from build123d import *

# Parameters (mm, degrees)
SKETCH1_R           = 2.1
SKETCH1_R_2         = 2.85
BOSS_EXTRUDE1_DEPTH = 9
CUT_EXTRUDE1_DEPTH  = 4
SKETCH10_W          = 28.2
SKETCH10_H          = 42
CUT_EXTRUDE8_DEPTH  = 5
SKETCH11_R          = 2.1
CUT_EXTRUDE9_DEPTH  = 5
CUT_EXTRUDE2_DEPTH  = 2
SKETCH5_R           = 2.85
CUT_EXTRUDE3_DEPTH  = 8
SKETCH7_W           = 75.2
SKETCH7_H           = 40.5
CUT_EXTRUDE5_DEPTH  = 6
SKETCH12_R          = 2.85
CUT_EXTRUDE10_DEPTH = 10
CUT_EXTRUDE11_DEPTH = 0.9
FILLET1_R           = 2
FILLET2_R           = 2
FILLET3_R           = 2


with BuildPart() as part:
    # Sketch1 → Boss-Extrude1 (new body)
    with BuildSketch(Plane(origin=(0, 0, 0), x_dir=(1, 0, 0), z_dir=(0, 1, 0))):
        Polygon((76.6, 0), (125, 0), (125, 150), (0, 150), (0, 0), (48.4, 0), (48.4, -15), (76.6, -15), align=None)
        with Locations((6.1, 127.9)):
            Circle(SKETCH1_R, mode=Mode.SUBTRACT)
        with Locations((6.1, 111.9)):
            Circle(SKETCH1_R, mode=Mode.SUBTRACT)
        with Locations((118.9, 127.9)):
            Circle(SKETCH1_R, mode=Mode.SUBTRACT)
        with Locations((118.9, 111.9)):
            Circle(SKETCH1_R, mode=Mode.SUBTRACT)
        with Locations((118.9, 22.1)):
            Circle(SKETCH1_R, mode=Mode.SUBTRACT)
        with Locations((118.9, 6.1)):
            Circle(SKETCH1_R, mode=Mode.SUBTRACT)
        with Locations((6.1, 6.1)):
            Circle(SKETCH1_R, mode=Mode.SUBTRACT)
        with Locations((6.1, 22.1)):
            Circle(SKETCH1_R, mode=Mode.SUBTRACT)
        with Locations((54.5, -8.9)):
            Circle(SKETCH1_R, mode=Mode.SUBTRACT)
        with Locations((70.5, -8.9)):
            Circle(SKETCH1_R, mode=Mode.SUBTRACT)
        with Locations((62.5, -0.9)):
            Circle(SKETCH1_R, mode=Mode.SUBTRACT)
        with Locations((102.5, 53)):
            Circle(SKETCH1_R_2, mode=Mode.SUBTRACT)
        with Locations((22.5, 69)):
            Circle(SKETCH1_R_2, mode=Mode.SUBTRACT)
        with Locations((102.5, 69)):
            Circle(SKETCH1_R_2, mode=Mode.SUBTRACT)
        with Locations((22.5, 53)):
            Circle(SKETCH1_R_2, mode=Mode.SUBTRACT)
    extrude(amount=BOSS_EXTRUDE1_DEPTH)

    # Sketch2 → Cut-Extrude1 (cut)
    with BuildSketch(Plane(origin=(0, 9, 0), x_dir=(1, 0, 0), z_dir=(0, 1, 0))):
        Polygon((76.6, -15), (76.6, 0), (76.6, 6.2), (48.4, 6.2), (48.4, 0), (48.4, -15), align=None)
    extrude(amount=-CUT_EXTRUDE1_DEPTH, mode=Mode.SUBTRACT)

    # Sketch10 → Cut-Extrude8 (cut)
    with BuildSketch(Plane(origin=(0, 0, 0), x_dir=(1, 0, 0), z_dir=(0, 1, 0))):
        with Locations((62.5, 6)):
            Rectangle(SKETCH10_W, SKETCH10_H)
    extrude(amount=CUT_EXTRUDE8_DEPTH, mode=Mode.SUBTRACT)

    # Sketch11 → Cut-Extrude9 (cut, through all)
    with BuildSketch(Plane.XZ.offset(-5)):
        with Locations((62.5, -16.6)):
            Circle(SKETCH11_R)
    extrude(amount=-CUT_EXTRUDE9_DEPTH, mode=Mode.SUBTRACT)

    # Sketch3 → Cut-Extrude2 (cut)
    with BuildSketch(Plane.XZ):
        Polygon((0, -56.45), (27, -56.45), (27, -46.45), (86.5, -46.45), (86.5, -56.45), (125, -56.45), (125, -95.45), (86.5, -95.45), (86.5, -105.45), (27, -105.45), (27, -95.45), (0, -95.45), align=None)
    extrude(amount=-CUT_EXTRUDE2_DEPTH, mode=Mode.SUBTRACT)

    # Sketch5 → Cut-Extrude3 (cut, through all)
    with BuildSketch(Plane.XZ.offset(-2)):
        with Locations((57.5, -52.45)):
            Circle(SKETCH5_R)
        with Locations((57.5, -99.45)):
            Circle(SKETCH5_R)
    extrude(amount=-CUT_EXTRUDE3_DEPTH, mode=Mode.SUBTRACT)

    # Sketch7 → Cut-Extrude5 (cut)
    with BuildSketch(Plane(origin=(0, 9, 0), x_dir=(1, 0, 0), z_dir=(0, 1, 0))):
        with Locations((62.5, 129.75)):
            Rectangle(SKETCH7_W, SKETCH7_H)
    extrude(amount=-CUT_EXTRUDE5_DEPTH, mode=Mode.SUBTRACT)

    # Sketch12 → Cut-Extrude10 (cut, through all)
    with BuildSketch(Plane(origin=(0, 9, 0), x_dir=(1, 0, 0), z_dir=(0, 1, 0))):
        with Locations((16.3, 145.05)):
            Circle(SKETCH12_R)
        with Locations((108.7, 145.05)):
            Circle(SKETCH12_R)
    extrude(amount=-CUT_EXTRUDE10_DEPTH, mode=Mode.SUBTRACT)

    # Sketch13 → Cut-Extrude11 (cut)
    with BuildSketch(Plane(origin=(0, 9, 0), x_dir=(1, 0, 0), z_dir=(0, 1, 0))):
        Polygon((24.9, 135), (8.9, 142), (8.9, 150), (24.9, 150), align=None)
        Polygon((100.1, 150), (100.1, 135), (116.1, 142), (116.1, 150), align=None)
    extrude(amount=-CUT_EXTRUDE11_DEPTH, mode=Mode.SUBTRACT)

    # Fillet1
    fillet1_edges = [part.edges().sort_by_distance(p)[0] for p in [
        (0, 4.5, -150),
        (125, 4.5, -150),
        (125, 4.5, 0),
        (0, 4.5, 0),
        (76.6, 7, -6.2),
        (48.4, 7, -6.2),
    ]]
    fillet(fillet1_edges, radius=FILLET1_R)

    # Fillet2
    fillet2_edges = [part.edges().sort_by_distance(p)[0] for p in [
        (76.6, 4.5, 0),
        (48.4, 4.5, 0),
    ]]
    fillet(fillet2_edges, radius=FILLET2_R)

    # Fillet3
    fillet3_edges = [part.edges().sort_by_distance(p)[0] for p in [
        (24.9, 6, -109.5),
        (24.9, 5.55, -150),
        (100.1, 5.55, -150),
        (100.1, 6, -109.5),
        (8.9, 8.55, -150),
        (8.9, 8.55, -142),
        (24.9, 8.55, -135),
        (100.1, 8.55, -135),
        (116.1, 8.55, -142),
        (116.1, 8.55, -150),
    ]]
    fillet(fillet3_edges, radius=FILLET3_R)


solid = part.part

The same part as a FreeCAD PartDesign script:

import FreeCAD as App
import Part
import Sketcher
Q = App.Units.Quantity


def edges_at(feature, points):
    """Names of the edges that pass closest to the given points."""
    edges = feature.Shape.Edges
    near = lambda p: min(range(len(edges)), key=lambda i: edges[i].distToShape(Part.Vertex(*p))[0])
    return sorted({f"Edge{near(p) + 1}" for p in points})

doc = App.newDocument("Part")
params = doc.addObject("Spreadsheet::Sheet", "Params")
for row, (alias, value) in enumerate([
    ("sketch1_diameter", "4.2 mm"),
    ("sketch1_diameter2", "5.7 mm"),
    ("sketch1_width", "125 mm"),
    ("sketch1_height", "150 mm"),
    ("sketch1_height2", "15 mm"),
    ("pad1_length", "9 mm"),
    ("sketch2_width", "28.2 mm"),
    ("sketch2_height", "21.2 mm"),
    ("pocket1_length", "4 mm"),
    ("sketch3_height", "42 mm"),
    ("sketch3_width", "28.2 mm"),
    ("pocket2_length", "5 mm"),
    ("sketch4_diameter", "4.2 mm"),
    ("sketch5_width", "27 mm"),
    ("sketch5_height", "39 mm"),
    ("sketch5_height2", "10 mm"),
    ("sketch5_width2", "59.5 mm"),
    ("sketch5_width3", "38.5 mm"),
    ("pocket4_length", "2 mm"),
    ("sketch6_diameter", "5.7 mm"),
    ("sketch7_width", "75.2 mm"),
    ("sketch7_height", "40.5 mm"),
    ("pocket6_length", "6 mm"),
    ("sketch8_diameter", "5.7 mm"),
    ("sketch9_width", "16 mm"),
    ("sketch9_height", "15 mm"),
    ("sketch9_height2", "8 mm"),
    ("pocket8_length", "0.9 mm"),
    ("fillet_radius", "2 mm"),
    ("fillet2_radius", "2 mm"),
    ("fillet3_radius", "2 mm"),
], start=1):
    params.set(f"A{row}", alias)
    params.set(f"B{row}", "=" + value)
    params.setAlias(f"B{row}", alias)

body = doc.addObject("PartDesign::Body", "Body")

# Sketch on XZ plane
sketch1 = body.newObject("Sketcher::SketchObject", "Sketch")
sketch1.AttachmentSupport = (doc.getObject("XZ_Plane"), [""])
sketch1.MapMode = "FlatFace"
sketch1.addGeometry(Part.LineSegment(App.Vector(76.6, 0, 0), App.Vector(125, 0, 0)), False)
sketch1.addGeometry(Part.LineSegment(App.Vector(125, 0, 0), App.Vector(125, -150, 0)), False)
sketch1.addGeometry(Part.LineSegment(App.Vector(125, -150, 0), App.Vector(0, -150, 0)), False)
sketch1.addGeometry(Part.LineSegment(App.Vector(0, -150, 0), App.Vector(0, 0, 0)), False)
sketch1.addGeometry(Part.LineSegment(App.Vector(0, 0, 0), App.Vector(48.4, 0, 0)), False)
sketch1.addGeometry(Part.LineSegment(App.Vector(48.4, 0, 0), App.Vector(48.4, 15, 0)), False)
sketch1.addGeometry(Part.LineSegment(App.Vector(48.4, 15, 0), App.Vector(76.6, 15, 0)), False)
sketch1.addGeometry(Part.LineSegment(App.Vector(76.6, 15, 0), App.Vector(76.6, 0, 0)), False)
sketch1.addGeometry(Part.Circle(App.Vector(6.1, -6.1, 0), App.Vector(0, 0, 1), 2.1), False)
sketch1.addGeometry(Part.Circle(App.Vector(6.1, -22.1, 0), App.Vector(0, 0, 1), 2.1), False)
sketch1.addGeometry(Part.Circle(App.Vector(54.5, 8.9, 0), App.Vector(0, 0, 1), 2.1), False)
sketch1.addGeometry(Part.Circle(App.Vector(22.5, -53, 0), App.Vector(0, 0, 1), 2.9), False)
sketch1.addGeometry(Part.Circle(App.Vector(70.5, 8.9, 0), App.Vector(0, 0, 1), 2.1), False)
sketch1.addGeometry(Part.Circle(App.Vector(62.5, 0.9, 0), App.Vector(0, 0, 1), 2.1), False)
sketch1.addGeometry(Part.Circle(App.Vector(118.9, -6.1, 0), App.Vector(0, 0, 1), 2.1), False)
sketch1.addGeometry(Part.Circle(App.Vector(118.9, -22.1, 0), App.Vector(0, 0, 1), 2.1), False)
sketch1.addGeometry(Part.Circle(App.Vector(102.5, -53, 0), App.Vector(0, 0, 1), 2.9), False)
sketch1.addGeometry(Part.Circle(App.Vector(22.5, -69, 0), App.Vector(0, 0, 1), 2.9), False)
sketch1.addGeometry(Part.Circle(App.Vector(6.1, -111.9, 0), App.Vector(0, 0, 1), 2.1), False)
sketch1.addGeometry(Part.Circle(App.Vector(6.1, -127.9, 0), App.Vector(0, 0, 1), 2.1), False)
sketch1.addGeometry(Part.Circle(App.Vector(102.5, -69, 0), App.Vector(0, 0, 1), 2.9), False)
sketch1.addGeometry(Part.Circle(App.Vector(118.9, -111.9, 0), App.Vector(0, 0, 1), 2.1), False)
sketch1.addGeometry(Part.Circle(App.Vector(118.9, -127.9, 0), App.Vector(0, 0, 1), 2.1), False)
sketch1.addConstraint(Sketcher.Constraint("Coincident", 0, 2, 1, 1))
sketch1.addConstraint(Sketcher.Constraint("Coincident", 1, 2, 2, 1))
sketch1.addConstraint(Sketcher.Constraint("Coincident", 2, 2, 3, 1))
sketch1.addConstraint(Sketcher.Constraint("Coincident", 3, 2, 4, 1))
sketch1.addConstraint(Sketcher.Constraint("Coincident", 4, 2, 5, 1))
sketch1.addConstraint(Sketcher.Constraint("Coincident", 5, 2, 6, 1))
sketch1.addConstraint(Sketcher.Constraint("Coincident", 6, 2, 7, 1))
sketch1.addConstraint(Sketcher.Constraint("Coincident", 7, 2, 0, 1))
sketch1.addConstraint(Sketcher.Constraint("Horizontal", 0))
sketch1.addConstraint(Sketcher.Constraint("Vertical", 1))
sketch1.addConstraint(Sketcher.Constraint("Horizontal", 2))
sketch1.addConstraint(Sketcher.Constraint("Vertical", 3))
sketch1.addConstraint(Sketcher.Constraint("Horizontal", 4))
sketch1.addConstraint(Sketcher.Constraint("Vertical", 5))
sketch1.addConstraint(Sketcher.Constraint("Horizontal", 6))
sketch1.addConstraint(Sketcher.Constraint("Vertical", 7))
sketch1.addConstraint(Sketcher.Constraint("Coincident", 3, 2, -1, 1))
sketch1.addConstraint(Sketcher.Constraint("Equal", 8, 9))
sketch1.addConstraint(Sketcher.Constraint("Equal", 9, 10))
sketch1.addConstraint(Sketcher.Constraint("Equal", 10, 12))
sketch1.addConstraint(Sketcher.Constraint("Equal", 12, 13))
sketch1.addConstraint(Sketcher.Constraint("Equal", 13, 14))
sketch1.addConstraint(Sketcher.Constraint("Equal", 14, 15))
sketch1.addConstraint(Sketcher.Constraint("Equal", 11, 16))
sketch1.addConstraint(Sketcher.Constraint("Equal", 16, 17))
sketch1.addConstraint(Sketcher.Constraint("Equal", 15, 18))
sketch1.addConstraint(Sketcher.Constraint("Equal", 18, 19))
sketch1.addConstraint(Sketcher.Constraint("Equal", 17, 20))
sketch1.addConstraint(Sketcher.Constraint("Equal", 19, 21))
sketch1.addConstraint(Sketcher.Constraint("Equal", 21, 22))
sketch1.addConstraint(Sketcher.Constraint("PointOnObject", 0, 2, -1))
sketch1.addConstraint(Sketcher.Constraint("Horizontal", 10, 3, 12, 3))
sketch1.addConstraint(Sketcher.Constraint("Horizontal", 8, 3, 14, 3))
sketch1.addConstraint(Sketcher.Constraint("Horizontal", 9, 3, 15, 3))
sketch1.addConstraint(Sketcher.Constraint("Horizontal", 11, 3, 16, 3))
sketch1.addConstraint(Sketcher.Constraint("Horizontal", 17, 3, 20, 3))
sketch1.addConstraint(Sketcher.Constraint("Horizontal", 18, 3, 21, 3))
sketch1.addConstraint(Sketcher.Constraint("Horizontal", 19, 3, 22, 3))
sketch1.addConstraint(Sketcher.Constraint("Vertical", 8, 3, 9, 3))
sketch1.addConstraint(Sketcher.Constraint("Vertical", 14, 3, 15, 3))
sketch1.addConstraint(Sketcher.Constraint("Vertical", 11, 3, 17, 3))
sketch1.addConstraint(Sketcher.Constraint("Vertical", 9, 3, 18, 3))
sketch1.addConstraint(Sketcher.Constraint("Vertical", 18, 3, 19, 3))
sketch1.addConstraint(Sketcher.Constraint("Vertical", 16, 3, 20, 3))
sketch1.addConstraint(Sketcher.Constraint("Vertical", 15, 3, 21, 3))
sketch1.addConstraint(Sketcher.Constraint("Vertical", 21, 3, 22, 3))
sketch1.addConstraint(Sketcher.Constraint("Equal", 0, 4))
sketch1.addConstraint(Sketcher.Constraint("Diameter", 8, Q("4.2 mm")))
sketch1.addConstraint(Sketcher.Constraint("Diameter", 11, Q("5.7 mm")))
sketch1.addConstraint(Sketcher.Constraint("DistanceX", 2, 2, 2, 1, Q("125 mm")))
sketch1.addConstraint(Sketcher.Constraint("DistanceY", 1, 2, 1, 1, Q("150 mm")))
sketch1.addConstraint(Sketcher.Constraint("DistanceY", 5, 1, 5, 2, Q("15 mm")))
sketch1.addConstraint(Sketcher.Constraint("DistanceX", 0, 1, 0, 2, Q("48.4 mm")))
sketch1.addConstraint(Sketcher.Constraint("DistanceY", 11, 3, -1, 1, Q("53 mm")))
sketch1.addConstraint(Sketcher.Constraint("DistanceY", 17, 3, -1, 1, Q("69 mm")))
sketch1.addConstraint(Sketcher.Constraint("DistanceY", 9, 3, 8, 3, Q("16 mm")))
sketch1.addConstraint(Sketcher.Constraint("DistanceY", 8, 3, 10, 3, Q("15 mm")))
sketch1.addConstraint(Sketcher.Constraint("DistanceX", 11, 3, 10, 3, Q("32 mm")))
sketch1.addConstraint(Sketcher.Constraint("DistanceX", 10, 3, 12, 3, Q("16 mm")))
sketch1.addConstraint(Sketcher.Constraint("DistanceX", 10, 3, 13, 3, Q("8 mm")))
sketch1.addConstraint(Sketcher.Constraint("DistanceY", 13, 3, 10, 3, Q("8 mm")))
sketch1.addConstraint(Sketcher.Constraint("DistanceX", 13, 3, 16, 3, Q("40 mm")))
sketch1.addConstraint(Sketcher.Constraint("DistanceY", 19, 3, 18, 3, Q("16 mm")))
sketch1.addConstraint(Sketcher.Constraint("DistanceX", -1, 1, 8, 3, Q("6.1 mm")))
sketch1.addConstraint(Sketcher.Constraint("DistanceY", 8, 3, -1, 1, Q("6.1 mm")))
sketch1.addConstraint(Sketcher.Constraint("DistanceX", -1, 1, 10, 3, Q("54.5 mm")))
sketch1.addConstraint(Sketcher.Constraint("DistanceX", -1, 1, 14, 3, Q("118.9 mm")))
sketch1.addConstraint(Sketcher.Constraint("DistanceY", 18, 3, -1, 1, Q("111.9 mm")))
sketch1.setExpression("Constraints[47]", "Params.sketch1_diameter")
sketch1.setExpression("Constraints[48]", "Params.sketch1_diameter2")
sketch1.setExpression("Constraints[49]", "Params.sketch1_width")
sketch1.setExpression("Constraints[50]", "Params.sketch1_height")
sketch1.setExpression("Constraints[51]", "Params.sketch1_height2")
pad1 = body.newObject("PartDesign::Pad", "Pad")
pad1.Profile = sketch1
pad1.setExpression("Length", "Params.pad1_length")
pad1.Reversed = True

# Sketch on XZ plane
sketch2 = body.newObject("Sketcher::SketchObject", "Sketch001")
sketch2.AttachmentSupport = (doc.getObject("XZ_Plane"), [""])
sketch2.MapMode = "FlatFace"
sketch2.AttachmentOffset = App.Placement(App.Vector(0, 0, -9), App.Rotation())
sketch2.addGeometry(Part.LineSegment(App.Vector(77, 15, 0), App.Vector(77, -6, 0)), False)
sketch2.addGeometry(Part.LineSegment(App.Vector(77, -6, 0), App.Vector(48, -6, 0)), False)
sketch2.addGeometry(Part.LineSegment(App.Vector(48, -6, 0), App.Vector(48, 15, 0)), False)
sketch2.addGeometry(Part.LineSegment(App.Vector(48, 15, 0), App.Vector(77, 15, 0)), False)
sketch2.addConstraint(Sketcher.Constraint("Coincident", 0, 2, 1, 1))
sketch2.addConstraint(Sketcher.Constraint("Coincident", 1, 2, 2, 1))
sketch2.addConstraint(Sketcher.Constraint("Coincident", 2, 2, 3, 1))
sketch2.addConstraint(Sketcher.Constraint("Coincident", 3, 2, 0, 1))
sketch2.addConstraint(Sketcher.Constraint("Vertical", 0))
sketch2.addConstraint(Sketcher.Constraint("Horizontal", 1))
sketch2.addConstraint(Sketcher.Constraint("Vertical", 2))
sketch2.addConstraint(Sketcher.Constraint("Horizontal", 3))
sketch2.addConstraint(Sketcher.Constraint("DistanceX", 1, 2, 1, 1, Q("28.2 mm")))
sketch2.addConstraint(Sketcher.Constraint("DistanceY", 0, 2, 0, 1, Q("21.2 mm")))
sketch2.addConstraint(Sketcher.Constraint("DistanceY", -1, 1, 2, 2, Q("15 mm")))
sketch2.addConstraint(Sketcher.Constraint("DistanceX", -1, 1, 0, 2, Q("76.6 mm")))
sketch2.setExpression("Constraints[8]", "Params.sketch2_width")
sketch2.setExpression("Constraints[9]", "Params.sketch2_height")
pocket1 = body.newObject("PartDesign::Pocket", "Pocket")
pocket1.Profile = sketch2
pocket1.setExpression("Length", "Params.pocket1_length")
pocket1.Reversed = True

# Sketch on XZ plane
sketch3 = body.newObject("Sketcher::SketchObject", "Sketch002")
sketch3.AttachmentSupport = (doc.getObject("XZ_Plane"), [""])
sketch3.MapMode = "FlatFace"
sketch3.addGeometry(Part.LineSegment(App.Vector(48, -27, 0), App.Vector(48, 15, 0)), False)
sketch3.addGeometry(Part.LineSegment(App.Vector(48, 15, 0), App.Vector(77, 15, 0)), False)
sketch3.addGeometry(Part.LineSegment(App.Vector(77, 15, 0), App.Vector(77, -27, 0)), False)
sketch3.addGeometry(Part.LineSegment(App.Vector(77, -27, 0), App.Vector(48, -27, 0)), False)
sketch3.addConstraint(Sketcher.Constraint("Coincident", 0, 2, 1, 1))
sketch3.addConstraint(Sketcher.Constraint("Coincident", 1, 2, 2, 1))
sketch3.addConstraint(Sketcher.Constraint("Coincident", 2, 2, 3, 1))
sketch3.addConstraint(Sketcher.Constraint("Coincident", 3, 2, 0, 1))
sketch3.addConstraint(Sketcher.Constraint("Vertical", 0))
sketch3.addConstraint(Sketcher.Constraint("Horizontal", 1))
sketch3.addConstraint(Sketcher.Constraint("Vertical", 2))
sketch3.addConstraint(Sketcher.Constraint("Horizontal", 3))
sketch3.addConstraint(Sketcher.Constraint("DistanceY", 0, 1, 0, 2, Q("42 mm")))
sketch3.addConstraint(Sketcher.Constraint("DistanceX", 1, 1, 1, 2, Q("28.2 mm")))
sketch3.addConstraint(Sketcher.Constraint("DistanceY", -1, 1, 0, 2, Q("15 mm")))
sketch3.addConstraint(Sketcher.Constraint("DistanceX", -1, 1, 0, 2, Q("48.4 mm")))
sketch3.setExpression("Constraints[8]", "Params.sketch3_height")
sketch3.setExpression("Constraints[9]", "Params.sketch3_width")
pocket2 = body.newObject("PartDesign::Pocket", "Pocket001")
pocket2.Profile = sketch3
pocket2.setExpression("Length", "Params.pocket2_length")

# Sketch on XZ plane
sketch4 = body.newObject("Sketcher::SketchObject", "Sketch003")
sketch4.AttachmentSupport = (doc.getObject("XZ_Plane"), [""])
sketch4.MapMode = "FlatFace"
sketch4.AttachmentOffset = App.Placement(App.Vector(0, 0, -5), App.Rotation())
sketch4.addGeometry(Part.Circle(App.Vector(62.5, -16.6, 0), App.Vector(0, 0, 1), 2.1), False)
sketch4.addConstraint(Sketcher.Constraint("Diameter", 0, Q("4.2 mm")))
sketch4.addConstraint(Sketcher.Constraint("DistanceX", -1, 1, 0, 3, Q("62.5 mm")))
sketch4.addConstraint(Sketcher.Constraint("DistanceY", 0, 3, -1, 1, Q("16.6 mm")))
sketch4.setExpression("Constraints[0]", "Params.sketch4_diameter")
pocket3 = body.newObject("PartDesign::Pocket", "Pocket002")
pocket3.Profile = sketch4
pocket3.Type = "ThroughAll"

# Sketch on XZ plane
sketch5 = body.newObject("Sketcher::SketchObject", "Sketch004")
sketch5.AttachmentSupport = (doc.getObject("XZ_Plane"), [""])
sketch5.MapMode = "FlatFace"
sketch5.addGeometry(Part.LineSegment(App.Vector(27, -56, 0), App.Vector(0, -56, 0)), False)
sketch5.addGeometry(Part.LineSegment(App.Vector(0, -56, 0), App.Vector(0, -95, 0)), False)
sketch5.addGeometry(Part.LineSegment(App.Vector(0, -95, 0), App.Vector(27, -95, 0)), False)
sketch5.addGeometry(Part.LineSegment(App.Vector(27, -95, 0), App.Vector(27, -105, 0)), False)
sketch5.addGeometry(Part.LineSegment(App.Vector(27, -105, 0), App.Vector(86, -105, 0)), False)
sketch5.addGeometry(Part.LineSegment(App.Vector(86, -105, 0), App.Vector(86, -95, 0)), False)
sketch5.addGeometry(Part.LineSegment(App.Vector(86, -95, 0), App.Vector(125, -95, 0)), False)
sketch5.addGeometry(Part.LineSegment(App.Vector(125, -95, 0), App.Vector(125, -56, 0)), False)
sketch5.addGeometry(Part.LineSegment(App.Vector(125, -56, 0), App.Vector(86, -56, 0)), False)
sketch5.addGeometry(Part.LineSegment(App.Vector(86, -56, 0), App.Vector(86, -46, 0)), False)
sketch5.addGeometry(Part.LineSegment(App.Vector(86, -46, 0), App.Vector(27, -46, 0)), False)
sketch5.addGeometry(Part.LineSegment(App.Vector(27, -46, 0), App.Vector(27, -56, 0)), False)
sketch5.addConstraint(Sketcher.Constraint("Coincident", 0, 2, 1, 1))
sketch5.addConstraint(Sketcher.Constraint("Coincident", 1, 2, 2, 1))
sketch5.addConstraint(Sketcher.Constraint("Coincident", 2, 2, 3, 1))
sketch5.addConstraint(Sketcher.Constraint("Coincident", 3, 2, 4, 1))
sketch5.addConstraint(Sketcher.Constraint("Coincident", 4, 2, 5, 1))
sketch5.addConstraint(Sketcher.Constraint("Coincident", 5, 2, 6, 1))
sketch5.addConstraint(Sketcher.Constraint("Coincident", 6, 2, 7, 1))
sketch5.addConstraint(Sketcher.Constraint("Coincident", 7, 2, 8, 1))
sketch5.addConstraint(Sketcher.Constraint("Coincident", 8, 2, 9, 1))
sketch5.addConstraint(Sketcher.Constraint("Coincident", 9, 2, 10, 1))
sketch5.addConstraint(Sketcher.Constraint("Coincident", 10, 2, 11, 1))
sketch5.addConstraint(Sketcher.Constraint("Coincident", 11, 2, 0, 1))
sketch5.addConstraint(Sketcher.Constraint("Horizontal", 0))
sketch5.addConstraint(Sketcher.Constraint("Vertical", 1))
sketch5.addConstraint(Sketcher.Constraint("Horizontal", 2))
sketch5.addConstraint(Sketcher.Constraint("Vertical", 3))
sketch5.addConstraint(Sketcher.Constraint("Horizontal", 4))
sketch5.addConstraint(Sketcher.Constraint("Vertical", 5))
sketch5.addConstraint(Sketcher.Constraint("Horizontal", 6))
sketch5.addConstraint(Sketcher.Constraint("Vertical", 7))
sketch5.addConstraint(Sketcher.Constraint("Horizontal", 8))
sketch5.addConstraint(Sketcher.Constraint("Vertical", 9))
sketch5.addConstraint(Sketcher.Constraint("Horizontal", 10))
sketch5.addConstraint(Sketcher.Constraint("Vertical", 11))
sketch5.addConstraint(Sketcher.Constraint("PointOnObject", 0, 2, -2))
sketch5.addConstraint(Sketcher.Constraint("Horizontal", 2, 2, 5, 2))
sketch5.addConstraint(Sketcher.Constraint("Horizontal", 0, 2, 7, 2))
sketch5.addConstraint(Sketcher.Constraint("Vertical", 5, 2, 8, 2))
sketch5.addConstraint(Sketcher.Constraint("Vertical", 3, 2, 10, 2))
sketch5.addConstraint(Sketcher.Constraint("Equal", 5, 9))
sketch5.addConstraint(Sketcher.Constraint("DistanceX", 0, 2, 0, 1, Q("27 mm")))
sketch5.addConstraint(Sketcher.Constraint("DistanceY", 1, 2, 1, 1, Q("39 mm")))
sketch5.addConstraint(Sketcher.Constraint("DistanceY", 3, 2, 3, 1, Q("10 mm")))
sketch5.addConstraint(Sketcher.Constraint("DistanceX", 4, 1, 4, 2, Q("59.5 mm")))
sketch5.addConstraint(Sketcher.Constraint("DistanceX", 6, 1, 6, 2, Q("38.5 mm")))
sketch5.addConstraint(Sketcher.Constraint("DistanceY", 0, 2, -1, 1, Q("56.45 mm")))
sketch5.setExpression("Constraints[30]", "Params.sketch5_width")
sketch5.setExpression("Constraints[31]", "Params.sketch5_height")
sketch5.setExpression("Constraints[32]", "Params.sketch5_height2")
sketch5.setExpression("Constraints[33]", "Params.sketch5_width2")
sketch5.setExpression("Constraints[34]", "Params.sketch5_width3")
pocket4 = body.newObject("PartDesign::Pocket", "Pocket003")
pocket4.Profile = sketch5
pocket4.setExpression("Length", "Params.pocket4_length")

# Sketch on XZ plane
sketch6 = body.newObject("Sketcher::SketchObject", "Sketch005")
sketch6.AttachmentSupport = (doc.getObject("XZ_Plane"), [""])
sketch6.MapMode = "FlatFace"
sketch6.AttachmentOffset = App.Placement(App.Vector(0, 0, -2), App.Rotation())
sketch6.addGeometry(Part.Circle(App.Vector(57.5, -52.5, 0), App.Vector(0, 0, 1), 2.9), False)
sketch6.addGeometry(Part.Circle(App.Vector(57.5, -99.5, 0), App.Vector(0, 0, 1), 2.9), False)
sketch6.addConstraint(Sketcher.Constraint("Equal", 0, 1))
sketch6.addConstraint(Sketcher.Constraint("Vertical", 0, 3, 1, 3))
sketch6.addConstraint(Sketcher.Constraint("Diameter", 0, Q("5.7 mm")))
sketch6.addConstraint(Sketcher.Constraint("DistanceY", 1, 3, 0, 3, Q("47 mm")))
sketch6.addConstraint(Sketcher.Constraint("DistanceX", -1, 1, 0, 3, Q("57.5 mm")))
sketch6.addConstraint(Sketcher.Constraint("DistanceY", 0, 3, -1, 1, Q("52.45 mm")))
sketch6.setExpression("Constraints[2]", "Params.sketch6_diameter")
pocket5 = body.newObject("PartDesign::Pocket", "Pocket004")
pocket5.Profile = sketch6
pocket5.Type = "ThroughAll"

# Sketch on XZ plane
sketch7 = body.newObject("Sketcher::SketchObject", "Sketch006")
sketch7.AttachmentSupport = (doc.getObject("XZ_Plane"), [""])
sketch7.MapMode = "FlatFace"
sketch7.AttachmentOffset = App.Placement(App.Vector(0, 0, -9), App.Rotation())
sketch7.addGeometry(Part.LineSegment(App.Vector(25, -150, 0), App.Vector(25, -110, 0)), False)
sketch7.addGeometry(Part.LineSegment(App.Vector(25, -110, 0), App.Vector(100, -110, 0)), False)
sketch7.addGeometry(Part.LineSegment(App.Vector(100, -110, 0), App.Vector(100, -150, 0)), False)
sketch7.addGeometry(Part.LineSegment(App.Vector(100, -150, 0), App.Vector(25, -150, 0)), False)
sketch7.addConstraint(Sketcher.Constraint("Coincident", 0, 2, 1, 1))
sketch7.addConstraint(Sketcher.Constraint("Coincident", 1, 2, 2, 1))
sketch7.addConstraint(Sketcher.Constraint("Coincident", 2, 2, 3, 1))
sketch7.addConstraint(Sketcher.Constraint("Coincident", 3, 2, 0, 1))
sketch7.addConstraint(Sketcher.Constraint("Vertical", 0))
sketch7.addConstraint(Sketcher.Constraint("Horizontal", 1))
sketch7.addConstraint(Sketcher.Constraint("Vertical", 2))
sketch7.addConstraint(Sketcher.Constraint("Horizontal", 3))
sketch7.addConstraint(Sketcher.Constraint("DistanceX", 1, 1, 1, 2, Q("75.2 mm")))
sketch7.addConstraint(Sketcher.Constraint("DistanceY", 0, 1, 0, 2, Q("40.5 mm")))
sketch7.addConstraint(Sketcher.Constraint("DistanceY", 2, 2, -1, 1, Q("150 mm")))
sketch7.addConstraint(Sketcher.Constraint("DistanceX", -1, 1, 0, 2, Q("24.9 mm")))
sketch7.setExpression("Constraints[8]", "Params.sketch7_width")
sketch7.setExpression("Constraints[9]", "Params.sketch7_height")
pocket6 = body.newObject("PartDesign::Pocket", "Pocket005")
pocket6.Profile = sketch7
pocket6.setExpression("Length", "Params.pocket6_length")
pocket6.Reversed = True

# Sketch on XZ plane
sketch8 = body.newObject("Sketcher::SketchObject", "Sketch007")
sketch8.AttachmentSupport = (doc.getObject("XZ_Plane"), [""])
sketch8.MapMode = "FlatFace"
sketch8.AttachmentOffset = App.Placement(App.Vector(0, 0, -9), App.Rotation())
sketch8.addGeometry(Part.Circle(App.Vector(16.3, -145.1, 0), App.Vector(0, 0, 1), 2.9), False)
sketch8.addGeometry(Part.Circle(App.Vector(108.7, -145.1, 0), App.Vector(0, 0, 1), 2.9), False)
sketch8.addConstraint(Sketcher.Constraint("Equal", 0, 1))
sketch8.addConstraint(Sketcher.Constraint("Horizontal", 0, 3, 1, 3))
sketch8.addConstraint(Sketcher.Constraint("Diameter", 0, Q("5.7 mm")))
sketch8.addConstraint(Sketcher.Constraint("DistanceX", -1, 1, 0, 3, Q("16.3 mm")))
sketch8.addConstraint(Sketcher.Constraint("DistanceX", -1, 1, 1, 3, Q("108.7 mm")))
sketch8.addConstraint(Sketcher.Constraint("DistanceY", 0, 3, -1, 1, Q("145.05 mm")))
sketch8.setExpression("Constraints[2]", "Params.sketch8_diameter")
pocket7 = body.newObject("PartDesign::Pocket", "Pocket006")
pocket7.Profile = sketch8
pocket7.Type = "ThroughAll"
pocket7.Reversed = True

# Sketch on XZ plane
sketch9 = body.newObject("Sketcher::SketchObject", "Sketch008")
sketch9.AttachmentSupport = (doc.getObject("XZ_Plane"), [""])
sketch9.MapMode = "FlatFace"
sketch9.AttachmentOffset = App.Placement(App.Vector(0, 0, -9), App.Rotation())
sketch9.addGeometry(Part.LineSegment(App.Vector(9, -142, 0), App.Vector(25, -135, 0)), False)
sketch9.addGeometry(Part.LineSegment(App.Vector(25, -135, 0), App.Vector(25, -150, 0)), False)
sketch9.addGeometry(Part.LineSegment(App.Vector(25, -150, 0), App.Vector(9, -150, 0)), False)
sketch9.addGeometry(Part.LineSegment(App.Vector(9, -150, 0), App.Vector(9, -142, 0)), False)
sketch9.addGeometry(Part.LineSegment(App.Vector(100, -150, 0), App.Vector(100, -135, 0)), False)
sketch9.addGeometry(Part.LineSegment(App.Vector(100, -135, 0), App.Vector(116, -142, 0)), False)
sketch9.addGeometry(Part.LineSegment(App.Vector(116, -142, 0), App.Vector(116, -150, 0)), False)
sketch9.addGeometry(Part.LineSegment(App.Vector(116, -150, 0), App.Vector(100, -150, 0)), False)
sketch9.addConstraint(Sketcher.Constraint("Coincident", 0, 2, 1, 1))
sketch9.addConstraint(Sketcher.Constraint("Coincident", 1, 2, 2, 1))
sketch9.addConstraint(Sketcher.Constraint("Coincident", 2, 2, 3, 1))
sketch9.addConstraint(Sketcher.Constraint("Coincident", 3, 2, 0, 1))
sketch9.addConstraint(Sketcher.Constraint("Coincident", 4, 2, 5, 1))
sketch9.addConstraint(Sketcher.Constraint("Coincident", 5, 2, 6, 1))
sketch9.addConstraint(Sketcher.Constraint("Coincident", 6, 2, 7, 1))
sketch9.addConstraint(Sketcher.Constraint("Coincident", 7, 2, 4, 1))
sketch9.addConstraint(Sketcher.Constraint("Vertical", 1))
sketch9.addConstraint(Sketcher.Constraint("Horizontal", 2))
sketch9.addConstraint(Sketcher.Constraint("Vertical", 3))
sketch9.addConstraint(Sketcher.Constraint("Vertical", 4))
sketch9.addConstraint(Sketcher.Constraint("Vertical", 6))
sketch9.addConstraint(Sketcher.Constraint("Horizontal", 7))
sketch9.addConstraint(Sketcher.Constraint("Horizontal", 0, 2, 4, 2))
sketch9.addConstraint(Sketcher.Constraint("Horizontal", 3, 2, 5, 2))
sketch9.addConstraint(Sketcher.Constraint("Horizontal", 2, 2, 6, 2))
sketch9.addConstraint(Sketcher.Constraint("Equal", 2, 7))
sketch9.addConstraint(Sketcher.Constraint("DistanceX", 2, 2, 2, 1, Q("16 mm")))
sketch9.addConstraint(Sketcher.Constraint("DistanceY", 1, 2, 1, 1, Q("15 mm")))
sketch9.addConstraint(Sketcher.Constraint("DistanceY", 3, 1, 3, 2, Q("8 mm")))
sketch9.addConstraint(Sketcher.Constraint("DistanceY", 0, 2, -1, 1, Q("135 mm")))
sketch9.addConstraint(Sketcher.Constraint("DistanceX", -1, 1, 0, 2, Q("24.9 mm")))
sketch9.addConstraint(Sketcher.Constraint("DistanceX", -1, 1, 4, 2, Q("100.1 mm")))
sketch9.setExpression("Constraints[18]", "Params.sketch9_width")
sketch9.setExpression("Constraints[19]", "Params.sketch9_height")
sketch9.setExpression("Constraints[20]", "Params.sketch9_height2")
pocket8 = body.newObject("PartDesign::Pocket", "Pocket007")
pocket8.Profile = sketch9
pocket8.setExpression("Length", "Params.pocket8_length")
pocket8.Reversed = True
doc.recompute()

fillet = body.newObject("PartDesign::Fillet", "Fillet")
fillet.Base = (pocket8, edges_at(pocket8, [
    (0, 4.5, -150),
    (125, 4.5, -150),
    (125, 4.5, 0),
    (0, 4.5, 0),
    (76.6, 7, -6.2),
    (48.4, 7, -6.2),
]))
fillet.setExpression("Radius", "Params.fillet_radius")
doc.recompute()

fillet2 = body.newObject("PartDesign::Fillet", "Fillet001")
fillet2.Base = (fillet, edges_at(fillet, [(76.6, 4.5, 0), (48.4, 4.5, 0)]))
fillet2.setExpression("Radius", "Params.fillet2_radius")
doc.recompute()

fillet3 = body.newObject("PartDesign::Fillet", "Fillet002")
fillet3.Base = (fillet2, edges_at(fillet2, [
    (24.9, 6, -109.5),
    (24.9, 5.55, -150),
    (100.1, 5.55, -150),
    (100.1, 6, -109.5),
    (8.9, 8.55, -150),
    (8.9, 8.55, -142),
    (24.9, 8.55, -135),
    (100.1, 8.55, -135),
    (116.1, 8.55, -142),
    (116.1, 8.55, -150),
]))
fillet3.setExpression("Radius", "Params.fillet3_radius")

doc.recompute()
